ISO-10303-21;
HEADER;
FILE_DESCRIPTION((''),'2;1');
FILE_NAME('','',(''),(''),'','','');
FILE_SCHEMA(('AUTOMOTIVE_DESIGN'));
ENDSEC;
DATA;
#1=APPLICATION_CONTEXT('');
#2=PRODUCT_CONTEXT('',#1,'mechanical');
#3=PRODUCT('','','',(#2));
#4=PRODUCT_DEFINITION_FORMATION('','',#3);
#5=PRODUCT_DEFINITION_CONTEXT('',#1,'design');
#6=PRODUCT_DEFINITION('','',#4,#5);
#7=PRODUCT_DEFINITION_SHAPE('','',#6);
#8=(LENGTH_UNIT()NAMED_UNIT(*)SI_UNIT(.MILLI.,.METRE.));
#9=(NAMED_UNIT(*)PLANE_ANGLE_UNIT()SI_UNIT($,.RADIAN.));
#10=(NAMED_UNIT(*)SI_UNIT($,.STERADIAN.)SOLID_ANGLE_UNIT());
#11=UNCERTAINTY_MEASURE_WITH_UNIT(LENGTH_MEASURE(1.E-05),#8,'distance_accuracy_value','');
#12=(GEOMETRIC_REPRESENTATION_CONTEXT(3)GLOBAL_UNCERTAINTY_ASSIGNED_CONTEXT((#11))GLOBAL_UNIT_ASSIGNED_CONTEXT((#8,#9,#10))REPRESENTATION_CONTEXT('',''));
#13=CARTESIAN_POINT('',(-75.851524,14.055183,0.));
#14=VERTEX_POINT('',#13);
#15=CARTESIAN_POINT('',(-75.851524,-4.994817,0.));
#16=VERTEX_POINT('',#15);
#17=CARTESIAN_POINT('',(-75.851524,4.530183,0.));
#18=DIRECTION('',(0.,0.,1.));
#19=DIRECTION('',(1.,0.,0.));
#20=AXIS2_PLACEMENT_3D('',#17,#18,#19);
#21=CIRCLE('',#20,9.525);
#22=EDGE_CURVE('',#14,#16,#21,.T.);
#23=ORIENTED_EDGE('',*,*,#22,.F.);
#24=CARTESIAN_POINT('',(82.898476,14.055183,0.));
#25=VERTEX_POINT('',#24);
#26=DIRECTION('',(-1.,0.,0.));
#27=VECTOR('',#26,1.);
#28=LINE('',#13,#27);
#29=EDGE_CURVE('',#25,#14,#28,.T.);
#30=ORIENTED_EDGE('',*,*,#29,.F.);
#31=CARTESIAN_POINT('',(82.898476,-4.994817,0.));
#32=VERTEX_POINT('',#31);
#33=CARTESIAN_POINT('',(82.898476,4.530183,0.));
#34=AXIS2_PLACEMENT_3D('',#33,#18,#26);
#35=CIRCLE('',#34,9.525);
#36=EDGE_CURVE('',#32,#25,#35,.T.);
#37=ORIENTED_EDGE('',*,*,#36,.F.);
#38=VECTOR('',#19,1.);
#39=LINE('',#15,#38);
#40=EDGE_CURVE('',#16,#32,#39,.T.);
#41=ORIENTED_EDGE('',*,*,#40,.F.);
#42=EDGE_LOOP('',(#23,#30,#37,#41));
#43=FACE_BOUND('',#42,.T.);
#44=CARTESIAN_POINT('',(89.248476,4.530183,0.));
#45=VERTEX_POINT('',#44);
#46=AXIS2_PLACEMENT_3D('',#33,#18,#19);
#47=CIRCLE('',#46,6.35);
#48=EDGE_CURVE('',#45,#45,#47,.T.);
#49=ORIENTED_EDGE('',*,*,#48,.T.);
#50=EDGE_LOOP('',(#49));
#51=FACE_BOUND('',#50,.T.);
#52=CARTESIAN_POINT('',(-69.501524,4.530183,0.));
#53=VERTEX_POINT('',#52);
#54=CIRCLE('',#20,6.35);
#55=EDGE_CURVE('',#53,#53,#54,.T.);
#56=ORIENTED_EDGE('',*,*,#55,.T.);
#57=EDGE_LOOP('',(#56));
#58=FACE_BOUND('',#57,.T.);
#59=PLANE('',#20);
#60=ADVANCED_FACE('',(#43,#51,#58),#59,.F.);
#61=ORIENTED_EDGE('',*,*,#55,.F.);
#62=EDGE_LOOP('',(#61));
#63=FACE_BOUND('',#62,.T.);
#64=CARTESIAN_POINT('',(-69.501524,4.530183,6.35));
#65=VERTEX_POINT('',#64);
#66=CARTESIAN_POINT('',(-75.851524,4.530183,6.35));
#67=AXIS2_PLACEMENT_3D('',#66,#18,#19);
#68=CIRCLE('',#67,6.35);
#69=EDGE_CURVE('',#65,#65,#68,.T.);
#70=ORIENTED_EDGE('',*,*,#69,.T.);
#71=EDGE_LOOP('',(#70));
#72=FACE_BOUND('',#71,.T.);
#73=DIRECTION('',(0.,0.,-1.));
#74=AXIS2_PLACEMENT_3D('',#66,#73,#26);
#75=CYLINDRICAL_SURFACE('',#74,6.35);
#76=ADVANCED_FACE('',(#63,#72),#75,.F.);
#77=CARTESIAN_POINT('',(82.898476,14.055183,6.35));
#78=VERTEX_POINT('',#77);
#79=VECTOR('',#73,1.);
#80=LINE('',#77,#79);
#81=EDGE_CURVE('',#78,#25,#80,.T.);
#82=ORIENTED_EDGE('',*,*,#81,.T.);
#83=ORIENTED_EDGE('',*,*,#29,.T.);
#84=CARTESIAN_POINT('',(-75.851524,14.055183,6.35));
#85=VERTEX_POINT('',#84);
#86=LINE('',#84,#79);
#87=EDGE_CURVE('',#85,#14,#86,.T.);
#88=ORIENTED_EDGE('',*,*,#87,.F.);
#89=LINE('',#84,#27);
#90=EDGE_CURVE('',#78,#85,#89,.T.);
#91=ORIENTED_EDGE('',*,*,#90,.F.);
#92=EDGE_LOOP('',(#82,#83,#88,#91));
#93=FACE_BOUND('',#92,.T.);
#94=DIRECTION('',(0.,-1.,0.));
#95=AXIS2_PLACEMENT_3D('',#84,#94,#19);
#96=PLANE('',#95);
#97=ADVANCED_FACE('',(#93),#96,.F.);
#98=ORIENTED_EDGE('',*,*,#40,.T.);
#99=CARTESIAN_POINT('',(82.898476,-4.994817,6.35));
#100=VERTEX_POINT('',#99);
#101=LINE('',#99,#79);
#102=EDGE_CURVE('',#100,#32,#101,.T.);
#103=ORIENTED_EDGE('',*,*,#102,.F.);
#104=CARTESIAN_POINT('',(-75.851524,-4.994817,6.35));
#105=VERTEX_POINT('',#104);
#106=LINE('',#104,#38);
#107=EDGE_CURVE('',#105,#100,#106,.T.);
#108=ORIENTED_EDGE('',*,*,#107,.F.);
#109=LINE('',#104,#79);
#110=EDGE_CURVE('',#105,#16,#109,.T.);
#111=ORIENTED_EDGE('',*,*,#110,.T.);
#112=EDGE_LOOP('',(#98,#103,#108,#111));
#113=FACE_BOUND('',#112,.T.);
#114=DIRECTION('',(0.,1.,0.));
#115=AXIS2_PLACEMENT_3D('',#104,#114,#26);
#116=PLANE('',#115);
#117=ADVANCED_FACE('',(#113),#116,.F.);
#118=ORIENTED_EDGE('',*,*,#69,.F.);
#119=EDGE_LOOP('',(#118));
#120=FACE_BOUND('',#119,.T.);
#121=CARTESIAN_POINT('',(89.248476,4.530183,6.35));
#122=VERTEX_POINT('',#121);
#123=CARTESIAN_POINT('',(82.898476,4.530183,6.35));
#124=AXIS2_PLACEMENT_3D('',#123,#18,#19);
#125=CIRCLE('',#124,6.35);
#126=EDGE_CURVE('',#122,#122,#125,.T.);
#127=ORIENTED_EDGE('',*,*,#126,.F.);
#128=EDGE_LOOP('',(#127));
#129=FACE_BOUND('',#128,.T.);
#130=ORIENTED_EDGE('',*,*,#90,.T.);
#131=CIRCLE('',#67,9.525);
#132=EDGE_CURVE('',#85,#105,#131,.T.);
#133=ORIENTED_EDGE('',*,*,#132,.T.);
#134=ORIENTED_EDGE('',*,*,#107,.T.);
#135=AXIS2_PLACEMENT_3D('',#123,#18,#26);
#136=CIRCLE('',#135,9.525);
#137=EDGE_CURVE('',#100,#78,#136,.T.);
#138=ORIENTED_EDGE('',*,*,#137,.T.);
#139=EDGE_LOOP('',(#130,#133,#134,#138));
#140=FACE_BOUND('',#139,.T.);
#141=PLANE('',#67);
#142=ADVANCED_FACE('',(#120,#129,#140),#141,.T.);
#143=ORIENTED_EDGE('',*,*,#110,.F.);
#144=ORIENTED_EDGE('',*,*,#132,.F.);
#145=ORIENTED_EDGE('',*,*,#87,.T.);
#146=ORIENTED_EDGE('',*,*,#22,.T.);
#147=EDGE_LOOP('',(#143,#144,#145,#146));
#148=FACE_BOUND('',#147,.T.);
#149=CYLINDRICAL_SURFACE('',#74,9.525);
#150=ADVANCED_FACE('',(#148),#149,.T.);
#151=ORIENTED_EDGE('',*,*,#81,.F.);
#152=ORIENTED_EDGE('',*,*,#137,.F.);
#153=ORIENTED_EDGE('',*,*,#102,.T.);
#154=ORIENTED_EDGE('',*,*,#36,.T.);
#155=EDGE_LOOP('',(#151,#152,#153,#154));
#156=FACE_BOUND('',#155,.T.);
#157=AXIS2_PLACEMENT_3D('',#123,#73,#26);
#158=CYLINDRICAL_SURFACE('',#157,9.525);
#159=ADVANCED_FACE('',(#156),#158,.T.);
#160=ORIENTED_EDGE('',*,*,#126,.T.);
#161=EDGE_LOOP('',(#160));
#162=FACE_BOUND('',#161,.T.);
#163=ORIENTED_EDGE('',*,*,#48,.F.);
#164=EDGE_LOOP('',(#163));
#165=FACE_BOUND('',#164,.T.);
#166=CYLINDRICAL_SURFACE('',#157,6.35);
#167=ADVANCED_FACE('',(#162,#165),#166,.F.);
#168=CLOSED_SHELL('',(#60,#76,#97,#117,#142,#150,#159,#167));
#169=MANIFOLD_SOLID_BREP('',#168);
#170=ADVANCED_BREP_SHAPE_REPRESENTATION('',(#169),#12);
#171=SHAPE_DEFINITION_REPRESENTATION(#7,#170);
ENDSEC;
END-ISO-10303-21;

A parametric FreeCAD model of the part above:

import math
import FreeCAD as App
import Part
import Sketcher

V = App.Vector
Q = App.Units.Quantity

doc = App.newDocument("Part")
body = doc.addObject("PartDesign::Body", "Body")

# Sketch on XY plane
sketch1 = body.newObject("Sketcher::SketchObject", "Sketch")
sketch1.AttachmentSupport = (doc.getObject("XY_Plane"), [""])
sketch1.MapMode = "FlatFace"
sketch1.addGeometry(Part.LineSegment(V(82.898476, 14.055183, 0), V(-75.851524, 14.055183, 0)), False)
sketch1.addGeometry(Part.ArcOfCircle(Part.Circle(V(-75.851524, 4.530183, 0), V(0, 0, 1), 9.525), math.radians(90), math.radians(270)), False)
sketch1.addGeometry(Part.LineSegment(V(-75.851524, -4.994817, 0), V(82.898476, -4.994817, 0)), False)
sketch1.addGeometry(Part.ArcOfCircle(Part.Circle(V(82.898476, 4.530183, 0), V(0, 0, 1), 9.525), math.radians(-90), math.radians(90)), False)
sketch1.addGeometry(Part.Circle(V(82.898476, 4.530183, 0), V(0, 0, 1), 6.35), False)
sketch1.addGeometry(Part.Circle(V(-75.851524, 4.530183, 0), V(0, 0, 1), 6.35), False)
sketch1.addConstraint(Sketcher.Constraint("Tangent", 0, 2, 1, 1))
sketch1.addConstraint(Sketcher.Constraint("Tangent", 1, 2, 2, 1))
sketch1.addConstraint(Sketcher.Constraint("Tangent", 2, 2, 3, 1))
sketch1.addConstraint(Sketcher.Constraint("Tangent", 3, 2, 0, 1))
sketch1.addConstraint(Sketcher.Constraint("Horizontal", 0))
sketch1.addConstraint(Sketcher.Constraint("Horizontal", 2))
sketch1.addConstraint(Sketcher.Constraint("Coincident", 4, 3, 3, 3))
sketch1.addConstraint(Sketcher.Constraint("Coincident", 5, 3, 1, 3))
sketch1.addConstraint(Sketcher.Constraint("Equal", 4, 5))
sketch1.addConstraint(Sketcher.Constraint("Diameter", 4, Q("0.5 in")))
sketch1.addConstraint(Sketcher.Constraint("Radius", 1, Q("0.375 in")))
sketch1.addConstraint(Sketcher.Constraint("DistanceX", 0, 2, 0, 1, Q("6.25 in")))
sketch1.addConstraint(Sketcher.Constraint("DistanceX", 1, 3, -1, 1, 75.851524))
sketch1.addConstraint(Sketcher.Constraint("DistanceY", -1, 1, 1, 3, 4.530183))
pad1 = body.newObject("PartDesign::Pad", "Pad")
pad1.Profile = sketch1
pad1.Length = Q("0.25 in")

doc.recompute()
